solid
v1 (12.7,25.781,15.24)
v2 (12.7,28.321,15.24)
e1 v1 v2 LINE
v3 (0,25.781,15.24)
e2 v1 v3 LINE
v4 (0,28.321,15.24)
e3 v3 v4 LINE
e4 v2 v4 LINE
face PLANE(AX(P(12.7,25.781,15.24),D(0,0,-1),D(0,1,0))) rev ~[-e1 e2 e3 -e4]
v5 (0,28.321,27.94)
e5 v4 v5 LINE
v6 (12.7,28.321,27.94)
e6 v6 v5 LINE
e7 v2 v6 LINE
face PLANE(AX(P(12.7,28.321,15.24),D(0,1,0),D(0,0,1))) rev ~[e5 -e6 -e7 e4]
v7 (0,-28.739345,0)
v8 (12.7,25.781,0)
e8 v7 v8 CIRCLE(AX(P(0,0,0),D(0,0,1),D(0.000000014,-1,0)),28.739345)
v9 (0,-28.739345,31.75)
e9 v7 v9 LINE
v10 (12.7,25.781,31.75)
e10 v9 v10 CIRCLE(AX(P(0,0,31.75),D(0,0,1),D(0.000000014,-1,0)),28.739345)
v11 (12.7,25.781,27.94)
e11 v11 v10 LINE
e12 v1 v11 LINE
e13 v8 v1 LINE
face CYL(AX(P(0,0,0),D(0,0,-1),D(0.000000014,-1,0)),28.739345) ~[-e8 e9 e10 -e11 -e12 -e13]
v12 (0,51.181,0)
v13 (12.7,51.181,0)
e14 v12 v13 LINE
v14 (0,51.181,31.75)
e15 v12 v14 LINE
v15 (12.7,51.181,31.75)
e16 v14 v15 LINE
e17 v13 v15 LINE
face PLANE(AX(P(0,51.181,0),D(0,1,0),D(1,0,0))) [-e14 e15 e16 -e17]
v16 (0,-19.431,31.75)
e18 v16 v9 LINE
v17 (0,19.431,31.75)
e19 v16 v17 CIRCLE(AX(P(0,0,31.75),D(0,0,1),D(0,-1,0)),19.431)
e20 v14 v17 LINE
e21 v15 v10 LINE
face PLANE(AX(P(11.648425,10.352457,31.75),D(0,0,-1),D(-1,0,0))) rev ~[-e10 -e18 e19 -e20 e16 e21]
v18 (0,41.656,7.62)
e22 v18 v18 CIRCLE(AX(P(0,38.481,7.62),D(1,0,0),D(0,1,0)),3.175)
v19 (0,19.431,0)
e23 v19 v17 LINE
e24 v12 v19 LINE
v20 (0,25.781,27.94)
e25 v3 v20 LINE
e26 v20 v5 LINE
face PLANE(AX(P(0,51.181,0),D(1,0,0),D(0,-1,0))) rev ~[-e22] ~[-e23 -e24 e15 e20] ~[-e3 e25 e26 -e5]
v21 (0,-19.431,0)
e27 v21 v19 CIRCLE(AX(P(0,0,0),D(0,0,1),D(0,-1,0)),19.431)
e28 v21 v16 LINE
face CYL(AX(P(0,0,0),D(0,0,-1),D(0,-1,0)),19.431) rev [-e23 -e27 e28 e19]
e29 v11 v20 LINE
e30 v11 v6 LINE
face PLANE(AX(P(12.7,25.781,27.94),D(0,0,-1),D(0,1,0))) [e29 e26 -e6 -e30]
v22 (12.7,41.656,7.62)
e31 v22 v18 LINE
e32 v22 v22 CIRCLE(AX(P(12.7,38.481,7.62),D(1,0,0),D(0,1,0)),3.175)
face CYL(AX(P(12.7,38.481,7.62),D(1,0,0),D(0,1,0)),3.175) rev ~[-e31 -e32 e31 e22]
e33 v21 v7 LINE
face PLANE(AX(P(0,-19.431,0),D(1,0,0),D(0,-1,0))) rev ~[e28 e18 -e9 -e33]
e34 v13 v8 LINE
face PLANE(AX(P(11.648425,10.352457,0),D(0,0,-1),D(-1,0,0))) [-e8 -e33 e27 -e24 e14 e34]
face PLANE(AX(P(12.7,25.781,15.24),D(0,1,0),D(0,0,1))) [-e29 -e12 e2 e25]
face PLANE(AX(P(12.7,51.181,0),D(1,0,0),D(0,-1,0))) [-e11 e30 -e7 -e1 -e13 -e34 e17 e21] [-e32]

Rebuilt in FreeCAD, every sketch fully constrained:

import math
import FreeCAD as App
import Part
import Sketcher
from FreeCAD import Vector
Q = App.Units.Quantity


def add_polygon(sketch, points):
    """Adds a closed chain of lines whose ends are joined by coincident constraints."""
    first, n = sketch.GeometryCount, len(points)
    for a, b in zip(points, points[1:] + points[:1]):
        sketch.addGeometry(Part.LineSegment(App.Vector(*a, 0), App.Vector(*b, 0)), False)
    for i in range(n):
        sketch.addConstraint(Sketcher.Constraint("Coincident", first + i, 2, first + (i + 1) % n, 1))

doc = App.newDocument("Part")
body = doc.addObject("PartDesign::Body", "Body")

# Sketch on XY plane
sketch1 = doc.addObject("Sketcher::SketchObject", "Sketch")
body.addObject(sketch1)
sketch1.AttachmentSupport = (doc.XY_Plane, [""])
sketch1.MapMode = "FlatFace"
sketch1.addGeometry([
    Part.LineSegment(Vector(13, 51, 0), Vector(0, 51, 0)),  # 0
    Part.LineSegment(Vector(0, 51, 0), Vector(0, 19, 0)),  # 1
    Part.ArcOfCircle(Part.Circle(Vector(0, 0, 0), Vector(0, 0, 1), 19), math.radians(-90), math.radians(90)),  # 2
    Part.LineSegment(Vector(0, -19, 0), Vector(0, -29, 0)),  # 3
    Part.ArcOfCircle(Part.Circle(Vector(0, 0, 0), Vector(0, 0, 1), 29), math.radians(-90), math.radians(64)),  # 4
    Part.LineSegment(Vector(13, 26, 0), Vector(13, 51, 0)),  # 5
], False)
sketch1.addConstraint([
    Sketcher.Constraint("Coincident", 0, 2, 1, 1),
    Sketcher.Constraint("Coincident", 1, 2, 2, 2),
    Sketcher.Constraint("Coincident", 2, 1, 3, 1),
    Sketcher.Constraint("Coincident", 3, 2, 4, 1),
    Sketcher.Constraint("Coincident", 4, 2, 5, 1),
    Sketcher.Constraint("Coincident", 5, 2, 0, 1),
    Sketcher.Constraint("Horizontal", 0),
    Sketcher.Constraint("Vertical", 1),
    Sketcher.Constraint("Vertical", 3),
    Sketcher.Constraint("Vertical", 5),
    Sketcher.Constraint("Coincident", 2, 3, -1, 1),
    Sketcher.Constraint("Coincident", 4, 3, -1, 1),
    Sketcher.Constraint("PointOnObject", 0, 2, -2),
    Sketcher.Constraint("PointOnObject", 2, 1, -2),
    Sketcher.Constraint("DistanceY", 5, 1, 5, 2, Q("1 in")),
    Sketcher.Constraint("DistanceX", 0, 2, 0, 1, Q("0.5 in")),
    Sketcher.Constraint("Radius", 2, Q("0.765 in")),
    Sketcher.Constraint("DistanceY", 1, 2, 1, 1, Q("1.25 in")),
])
pad1 = doc.addObject("PartDesign::Pad", "Pad")
body.addObject(pad1)
pad1.Profile = sketch1
pad1.Length = Q("1.25 in")

# Sketch on YZ plane
sketch2 = doc.addObject("Sketcher::SketchObject", "Sketch001")
body.addObject(sketch2)
sketch2.AttachmentSupport = (doc.YZ_Plane, [""])
sketch2.MapMode = "FlatFace"
sketch2.AttachmentOffset = App.Placement(Vector(0, 0, 0.5 * 25.4), App.Rotation())
sketch2.addGeometry(Part.Circle(Vector(38.5, 7.6, 0), Vector(0, 0, 1), 3.2), False)  # 0
add_polygon(sketch2, [(25.8, 27.9), (25.8, 15.2), (28.3, 15.2), (28.3, 27.9)])  # lines 1-4
sketch2.addConstraint([
    Sketcher.Constraint("Vertical", 1),
    Sketcher.Constraint("Horizontal", 2),
    Sketcher.Constraint("Vertical", 3),
    Sketcher.Constraint("Horizontal", 4),
    Sketcher.Constraint("Diameter", 0, Q("0.25 in")),
    Sketcher.Constraint("DistanceX", 2, 1, 2, 2, Q("0.1 in")),
    Sketcher.Constraint("DistanceY", 1, 2, 1, 1, Q("0.5 in")),
    Sketcher.Constraint("DistanceY", -1, 1, 0, 3, Q("0.3 in")),
    Sketcher.Constraint("DistanceY", -1, 1, 1, 2, Q("0.6 in")),
    Sketcher.Constraint("DistanceX", 1, 2, 0, 3, Q("0.5 in")),
    Sketcher.Constraint("DistanceX", -1, 1, 0, 3, Q("1.515 in")),
])
pocket1 = doc.addObject("PartDesign::Pocket", "Pocket")
body.addObject(pocket1)
pocket1.Profile = sketch2
pocket1.Type = "ThroughAll"

doc.recompute()
